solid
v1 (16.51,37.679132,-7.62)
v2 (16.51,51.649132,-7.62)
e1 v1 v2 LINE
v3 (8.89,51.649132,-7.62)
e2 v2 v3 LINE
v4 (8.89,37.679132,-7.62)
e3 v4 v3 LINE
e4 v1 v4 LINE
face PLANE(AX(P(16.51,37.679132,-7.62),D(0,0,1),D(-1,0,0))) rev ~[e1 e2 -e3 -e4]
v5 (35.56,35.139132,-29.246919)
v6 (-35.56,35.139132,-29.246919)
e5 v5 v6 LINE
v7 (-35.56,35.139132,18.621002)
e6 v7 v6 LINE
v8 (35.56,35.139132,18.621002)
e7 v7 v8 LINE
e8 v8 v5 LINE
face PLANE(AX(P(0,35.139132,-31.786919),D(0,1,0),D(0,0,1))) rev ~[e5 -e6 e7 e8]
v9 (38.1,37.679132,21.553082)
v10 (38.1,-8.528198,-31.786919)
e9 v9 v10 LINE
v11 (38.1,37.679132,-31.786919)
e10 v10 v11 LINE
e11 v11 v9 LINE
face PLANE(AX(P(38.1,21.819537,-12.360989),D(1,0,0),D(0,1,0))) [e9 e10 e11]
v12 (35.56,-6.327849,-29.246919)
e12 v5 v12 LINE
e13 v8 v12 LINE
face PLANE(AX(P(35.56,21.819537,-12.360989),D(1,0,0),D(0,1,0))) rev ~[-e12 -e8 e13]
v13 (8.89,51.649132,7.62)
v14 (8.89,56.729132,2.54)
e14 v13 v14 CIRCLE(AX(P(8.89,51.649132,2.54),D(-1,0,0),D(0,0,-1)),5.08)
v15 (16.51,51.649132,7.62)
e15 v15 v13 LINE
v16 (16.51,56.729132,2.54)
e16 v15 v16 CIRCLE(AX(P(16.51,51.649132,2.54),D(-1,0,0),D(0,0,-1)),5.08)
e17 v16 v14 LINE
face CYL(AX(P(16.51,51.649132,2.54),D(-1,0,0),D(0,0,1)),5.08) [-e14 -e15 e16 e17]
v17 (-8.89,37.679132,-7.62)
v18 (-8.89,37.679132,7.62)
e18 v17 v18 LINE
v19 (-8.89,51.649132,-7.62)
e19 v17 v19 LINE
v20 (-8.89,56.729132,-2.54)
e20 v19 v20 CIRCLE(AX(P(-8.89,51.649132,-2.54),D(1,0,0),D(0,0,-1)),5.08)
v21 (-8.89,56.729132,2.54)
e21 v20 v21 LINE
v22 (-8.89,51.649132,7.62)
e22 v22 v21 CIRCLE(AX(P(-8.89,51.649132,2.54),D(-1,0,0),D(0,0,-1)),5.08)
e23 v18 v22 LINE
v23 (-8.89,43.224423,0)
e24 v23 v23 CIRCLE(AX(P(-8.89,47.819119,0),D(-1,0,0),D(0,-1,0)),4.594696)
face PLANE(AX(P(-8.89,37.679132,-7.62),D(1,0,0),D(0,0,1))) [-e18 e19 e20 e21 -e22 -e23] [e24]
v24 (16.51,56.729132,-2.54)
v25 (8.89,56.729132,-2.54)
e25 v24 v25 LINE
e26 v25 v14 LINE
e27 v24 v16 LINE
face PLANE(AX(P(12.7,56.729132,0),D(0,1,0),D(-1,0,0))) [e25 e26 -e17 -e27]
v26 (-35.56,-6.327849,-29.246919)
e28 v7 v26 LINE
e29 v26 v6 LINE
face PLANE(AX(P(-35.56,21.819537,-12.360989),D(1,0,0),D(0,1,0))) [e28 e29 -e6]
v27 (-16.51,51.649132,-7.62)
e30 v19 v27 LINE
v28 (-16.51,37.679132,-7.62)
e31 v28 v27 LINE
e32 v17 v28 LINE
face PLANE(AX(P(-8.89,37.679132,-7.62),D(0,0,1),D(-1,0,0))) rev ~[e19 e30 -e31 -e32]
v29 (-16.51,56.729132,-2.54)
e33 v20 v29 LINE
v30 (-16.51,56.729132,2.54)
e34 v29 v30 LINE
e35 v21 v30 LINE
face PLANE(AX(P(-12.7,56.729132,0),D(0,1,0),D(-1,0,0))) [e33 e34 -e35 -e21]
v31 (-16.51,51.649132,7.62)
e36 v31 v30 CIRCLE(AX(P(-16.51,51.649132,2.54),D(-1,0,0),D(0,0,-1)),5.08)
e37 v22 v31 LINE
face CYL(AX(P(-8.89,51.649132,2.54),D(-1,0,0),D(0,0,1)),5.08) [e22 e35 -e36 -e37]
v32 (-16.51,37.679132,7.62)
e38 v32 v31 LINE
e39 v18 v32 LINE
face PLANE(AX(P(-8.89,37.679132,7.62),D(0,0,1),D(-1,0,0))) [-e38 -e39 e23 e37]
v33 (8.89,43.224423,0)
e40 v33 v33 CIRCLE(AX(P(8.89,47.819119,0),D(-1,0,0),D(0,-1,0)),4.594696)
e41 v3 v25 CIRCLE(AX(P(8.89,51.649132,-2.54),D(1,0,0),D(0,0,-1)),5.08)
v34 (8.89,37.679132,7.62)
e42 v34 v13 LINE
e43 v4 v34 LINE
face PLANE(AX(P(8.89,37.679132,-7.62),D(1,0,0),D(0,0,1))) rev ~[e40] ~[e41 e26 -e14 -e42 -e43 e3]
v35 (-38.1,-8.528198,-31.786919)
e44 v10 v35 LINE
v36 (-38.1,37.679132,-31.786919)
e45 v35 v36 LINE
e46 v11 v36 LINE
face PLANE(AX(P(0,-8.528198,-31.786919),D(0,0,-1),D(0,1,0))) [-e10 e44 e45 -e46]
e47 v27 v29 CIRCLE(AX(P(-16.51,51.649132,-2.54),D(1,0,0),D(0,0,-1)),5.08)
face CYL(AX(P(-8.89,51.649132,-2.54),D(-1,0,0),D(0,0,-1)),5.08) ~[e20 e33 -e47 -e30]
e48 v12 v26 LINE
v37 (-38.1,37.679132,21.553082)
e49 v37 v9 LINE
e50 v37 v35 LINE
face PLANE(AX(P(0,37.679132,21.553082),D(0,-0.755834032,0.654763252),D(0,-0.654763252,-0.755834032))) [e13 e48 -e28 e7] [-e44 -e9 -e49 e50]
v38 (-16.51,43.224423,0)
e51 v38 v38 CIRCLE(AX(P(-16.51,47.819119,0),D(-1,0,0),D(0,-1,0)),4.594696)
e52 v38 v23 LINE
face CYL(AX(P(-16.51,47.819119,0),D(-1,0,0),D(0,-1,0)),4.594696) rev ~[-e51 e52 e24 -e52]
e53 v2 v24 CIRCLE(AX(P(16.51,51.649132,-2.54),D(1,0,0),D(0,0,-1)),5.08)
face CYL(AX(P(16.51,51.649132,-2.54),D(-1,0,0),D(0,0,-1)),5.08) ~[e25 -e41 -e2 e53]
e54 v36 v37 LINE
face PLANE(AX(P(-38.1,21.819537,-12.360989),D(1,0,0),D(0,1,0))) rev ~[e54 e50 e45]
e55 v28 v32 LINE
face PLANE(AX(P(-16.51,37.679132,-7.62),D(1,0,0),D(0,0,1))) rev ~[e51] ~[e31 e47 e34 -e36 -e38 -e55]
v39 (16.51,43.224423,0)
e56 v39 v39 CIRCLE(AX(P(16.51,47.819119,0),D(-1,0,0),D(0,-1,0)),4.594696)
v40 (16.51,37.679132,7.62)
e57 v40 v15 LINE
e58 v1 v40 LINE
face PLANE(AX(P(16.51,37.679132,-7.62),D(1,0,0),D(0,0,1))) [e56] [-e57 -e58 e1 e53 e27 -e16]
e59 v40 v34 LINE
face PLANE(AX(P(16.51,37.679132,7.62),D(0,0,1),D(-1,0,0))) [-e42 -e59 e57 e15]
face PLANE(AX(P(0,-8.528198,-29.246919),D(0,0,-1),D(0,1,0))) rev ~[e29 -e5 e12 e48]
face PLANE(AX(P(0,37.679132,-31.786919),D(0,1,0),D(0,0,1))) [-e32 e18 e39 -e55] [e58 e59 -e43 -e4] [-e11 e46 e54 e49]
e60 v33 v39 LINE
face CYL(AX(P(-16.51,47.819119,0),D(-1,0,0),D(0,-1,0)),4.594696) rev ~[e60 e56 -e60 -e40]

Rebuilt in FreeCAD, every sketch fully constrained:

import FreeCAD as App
import Part
import Sketcher

V = App.Vector
Q = App.Units.Quantity


def edges_at(feature, points):
    """Names of the edges that pass closest to the given points."""
    edges = feature.Shape.Edges
    near = lambda p: min(range(len(edges)), key=lambda i: edges[i].distToShape(Part.Vertex(*p))[0])
    return sorted({f"Edge{near(p) + 1}" for p in points})


def faces_at(feature, points):
    """Names of the faces that lie closest to the given points."""
    faces = feature.Shape.Faces
    near = lambda p: min(range(len(faces)), key=lambda i: faces[i].distToShape(Part.Vertex(*p))[0])
    return sorted({f"Face{near(p) + 1}" for p in points})


def add_polygon(sketch, points):
    """Adds a closed chain of lines whose ends are joined by coincident constraints."""
    first, n = sketch.GeometryCount, len(points)
    for a, b in zip(points, points[1:] + points[:1]):
        sketch.addGeometry(Part.LineSegment(App.Vector(*a, 0), App.Vector(*b, 0)), False)
    for i in range(n):
        sketch.addConstraint(Sketcher.Constraint("Coincident", first + i, 2, first + (i + 1) % n, 1))

doc = App.newDocument("Part")
body = doc.addObject("PartDesign::Body", "Body")

# Sketch on YZ plane
sketch1 = body.newObject("Sketcher::SketchObject", "Sketch")
sketch1.AttachmentSupport = (doc.getObject("YZ_Plane"), [""])
sketch1.MapMode = "FlatFace"
add_polygon(sketch1, [(38, -32), (38, 22), (-9, -32)])  # lines 0-2
sketch1.addConstraint(Sketcher.Constraint("Vertical", 0))
sketch1.addConstraint(Sketcher.Constraint("Horizontal", 2))
sketch1.addConstraint(Sketcher.Constraint("DistanceY", 0, 1, 0, 2, Q("2.1 in")))
sketch1.addConstraint(Sketcher.Constraint("DistanceX", 2, 1, 2, 2, 46.20733))
sketch1.addConstraint(Sketcher.Constraint("DistanceY", -1, 1, 0, 2, 21.553082))
sketch1.addConstraint(Sketcher.Constraint("DistanceX", -1, 1, 0, 2, 37.679132))
pad1 = body.newObject("PartDesign::Pad", "Pad")
pad1.Profile = sketch1
pad1.Length = Q("3 in")
pad1.Midplane = True
doc.recompute()

thickness = body.newObject("PartDesign::Thickness", "Thickness")
thickness.Base = (pad1, faces_at(pad1, [(0, 14.575, -5.117)]))
thickness.Value = Q("0.1 in")
thickness.Reversed = True
thickness.Join = "Arc"

# Sketch on XZ plane
sketch2 = body.newObject("Sketcher::SketchObject", "Sketch001")
sketch2.AttachmentSupport = (doc.getObject("XZ_Plane"), [""])
sketch2.MapMode = "FlatFace"
sketch2.AttachmentOffset = App.Placement(V(0, 0, -37.679132), App.Rotation())
add_polygon(sketch2, [(17, 8), (17, -8), (9, -8), (9, 8)])  # lines 0-3
add_polygon(sketch2, [(-9, 8), (-9, -8), (-17, -8), (-17, 8)])  # lines 4-7
sketch2.addConstraint(Sketcher.Constraint("Vertical", 0))
sketch2.addConstraint(Sketcher.Constraint("Horizontal", 1))
sketch2.addConstraint(Sketcher.Constraint("Vertical", 2))
sketch2.addConstraint(Sketcher.Constraint("Horizontal", 3))
sketch2.addConstraint(Sketcher.Constraint("Vertical", 4))
sketch2.addConstraint(Sketcher.Constraint("Horizontal", 5))
sketch2.addConstraint(Sketcher.Constraint("Vertical", 6))
sketch2.addConstraint(Sketcher.Constraint("Horizontal", 7))
sketch2.addConstraint(Sketcher.Constraint("Symmetric", 2, 2, 4, 2, -1, 1))
sketch2.addConstraint(Sketcher.Constraint("Symmetric", 0, 2, 6, 2, -1, 1))
sketch2.addConstraint(Sketcher.Constraint("Horizontal", 1, 2, 4, 2))
sketch2.addConstraint(Sketcher.Constraint("DistanceX", 1, 2, 1, 1, Q("0.3 in")))
sketch2.addConstraint(Sketcher.Constraint("DistanceY", 0, 2, 0, 1, Q("0.6 in")))
sketch2.addConstraint(Sketcher.Constraint("DistanceX", 4, 2, 0, 2, Q("1 in")))
pad2 = body.newObject("PartDesign::Pad", "Pad001")
pad2.Profile = sketch2
pad2.Length = Q("0.75 in")
pad2.Reversed = True
doc.recompute()

fillet = body.newObject("PartDesign::Fillet", "Fillet")
fillet.Base = (pad2, edges_at(pad2, [
    (12.7, 56.729, 7.62),
    (12.7, 56.729, -7.62),
    (-12.7, 56.729, -7.62),
    (-12.7, 56.729, 7.62),
]))
fillet.Radius = Q("0.2 in")

# Sketch on YZ plane
sketch3 = body.newObject("Sketcher::SketchObject", "Sketch002")
sketch3.AttachmentSupport = (doc.getObject("YZ_Plane"), [""])
sketch3.MapMode = "FlatFace"
sketch3.AttachmentOffset = App.Placement(V(0, 0, -0.65 * 25.4), App.Rotation())
sketch3.addGeometry(Part.Circle(V(47.8, 0, 0), V(0, 0, 1), 4.6), False)
sketch3.addConstraint(Sketcher.Constraint("PointOnObject", 0, 3, -1))
sketch3.addConstraint(Sketcher.Constraint("Diameter", 0, 9.189392))
sketch3.addConstraint(Sketcher.Constraint("DistanceX", -1, 1, 0, 3, 47.819119))
pocket1 = body.newObject("PartDesign::Pocket", "Pocket")
pocket1.Profile = sketch3
pocket1.Length = Q("1.57 in")
pocket1.Reversed = True

doc.recompute()
